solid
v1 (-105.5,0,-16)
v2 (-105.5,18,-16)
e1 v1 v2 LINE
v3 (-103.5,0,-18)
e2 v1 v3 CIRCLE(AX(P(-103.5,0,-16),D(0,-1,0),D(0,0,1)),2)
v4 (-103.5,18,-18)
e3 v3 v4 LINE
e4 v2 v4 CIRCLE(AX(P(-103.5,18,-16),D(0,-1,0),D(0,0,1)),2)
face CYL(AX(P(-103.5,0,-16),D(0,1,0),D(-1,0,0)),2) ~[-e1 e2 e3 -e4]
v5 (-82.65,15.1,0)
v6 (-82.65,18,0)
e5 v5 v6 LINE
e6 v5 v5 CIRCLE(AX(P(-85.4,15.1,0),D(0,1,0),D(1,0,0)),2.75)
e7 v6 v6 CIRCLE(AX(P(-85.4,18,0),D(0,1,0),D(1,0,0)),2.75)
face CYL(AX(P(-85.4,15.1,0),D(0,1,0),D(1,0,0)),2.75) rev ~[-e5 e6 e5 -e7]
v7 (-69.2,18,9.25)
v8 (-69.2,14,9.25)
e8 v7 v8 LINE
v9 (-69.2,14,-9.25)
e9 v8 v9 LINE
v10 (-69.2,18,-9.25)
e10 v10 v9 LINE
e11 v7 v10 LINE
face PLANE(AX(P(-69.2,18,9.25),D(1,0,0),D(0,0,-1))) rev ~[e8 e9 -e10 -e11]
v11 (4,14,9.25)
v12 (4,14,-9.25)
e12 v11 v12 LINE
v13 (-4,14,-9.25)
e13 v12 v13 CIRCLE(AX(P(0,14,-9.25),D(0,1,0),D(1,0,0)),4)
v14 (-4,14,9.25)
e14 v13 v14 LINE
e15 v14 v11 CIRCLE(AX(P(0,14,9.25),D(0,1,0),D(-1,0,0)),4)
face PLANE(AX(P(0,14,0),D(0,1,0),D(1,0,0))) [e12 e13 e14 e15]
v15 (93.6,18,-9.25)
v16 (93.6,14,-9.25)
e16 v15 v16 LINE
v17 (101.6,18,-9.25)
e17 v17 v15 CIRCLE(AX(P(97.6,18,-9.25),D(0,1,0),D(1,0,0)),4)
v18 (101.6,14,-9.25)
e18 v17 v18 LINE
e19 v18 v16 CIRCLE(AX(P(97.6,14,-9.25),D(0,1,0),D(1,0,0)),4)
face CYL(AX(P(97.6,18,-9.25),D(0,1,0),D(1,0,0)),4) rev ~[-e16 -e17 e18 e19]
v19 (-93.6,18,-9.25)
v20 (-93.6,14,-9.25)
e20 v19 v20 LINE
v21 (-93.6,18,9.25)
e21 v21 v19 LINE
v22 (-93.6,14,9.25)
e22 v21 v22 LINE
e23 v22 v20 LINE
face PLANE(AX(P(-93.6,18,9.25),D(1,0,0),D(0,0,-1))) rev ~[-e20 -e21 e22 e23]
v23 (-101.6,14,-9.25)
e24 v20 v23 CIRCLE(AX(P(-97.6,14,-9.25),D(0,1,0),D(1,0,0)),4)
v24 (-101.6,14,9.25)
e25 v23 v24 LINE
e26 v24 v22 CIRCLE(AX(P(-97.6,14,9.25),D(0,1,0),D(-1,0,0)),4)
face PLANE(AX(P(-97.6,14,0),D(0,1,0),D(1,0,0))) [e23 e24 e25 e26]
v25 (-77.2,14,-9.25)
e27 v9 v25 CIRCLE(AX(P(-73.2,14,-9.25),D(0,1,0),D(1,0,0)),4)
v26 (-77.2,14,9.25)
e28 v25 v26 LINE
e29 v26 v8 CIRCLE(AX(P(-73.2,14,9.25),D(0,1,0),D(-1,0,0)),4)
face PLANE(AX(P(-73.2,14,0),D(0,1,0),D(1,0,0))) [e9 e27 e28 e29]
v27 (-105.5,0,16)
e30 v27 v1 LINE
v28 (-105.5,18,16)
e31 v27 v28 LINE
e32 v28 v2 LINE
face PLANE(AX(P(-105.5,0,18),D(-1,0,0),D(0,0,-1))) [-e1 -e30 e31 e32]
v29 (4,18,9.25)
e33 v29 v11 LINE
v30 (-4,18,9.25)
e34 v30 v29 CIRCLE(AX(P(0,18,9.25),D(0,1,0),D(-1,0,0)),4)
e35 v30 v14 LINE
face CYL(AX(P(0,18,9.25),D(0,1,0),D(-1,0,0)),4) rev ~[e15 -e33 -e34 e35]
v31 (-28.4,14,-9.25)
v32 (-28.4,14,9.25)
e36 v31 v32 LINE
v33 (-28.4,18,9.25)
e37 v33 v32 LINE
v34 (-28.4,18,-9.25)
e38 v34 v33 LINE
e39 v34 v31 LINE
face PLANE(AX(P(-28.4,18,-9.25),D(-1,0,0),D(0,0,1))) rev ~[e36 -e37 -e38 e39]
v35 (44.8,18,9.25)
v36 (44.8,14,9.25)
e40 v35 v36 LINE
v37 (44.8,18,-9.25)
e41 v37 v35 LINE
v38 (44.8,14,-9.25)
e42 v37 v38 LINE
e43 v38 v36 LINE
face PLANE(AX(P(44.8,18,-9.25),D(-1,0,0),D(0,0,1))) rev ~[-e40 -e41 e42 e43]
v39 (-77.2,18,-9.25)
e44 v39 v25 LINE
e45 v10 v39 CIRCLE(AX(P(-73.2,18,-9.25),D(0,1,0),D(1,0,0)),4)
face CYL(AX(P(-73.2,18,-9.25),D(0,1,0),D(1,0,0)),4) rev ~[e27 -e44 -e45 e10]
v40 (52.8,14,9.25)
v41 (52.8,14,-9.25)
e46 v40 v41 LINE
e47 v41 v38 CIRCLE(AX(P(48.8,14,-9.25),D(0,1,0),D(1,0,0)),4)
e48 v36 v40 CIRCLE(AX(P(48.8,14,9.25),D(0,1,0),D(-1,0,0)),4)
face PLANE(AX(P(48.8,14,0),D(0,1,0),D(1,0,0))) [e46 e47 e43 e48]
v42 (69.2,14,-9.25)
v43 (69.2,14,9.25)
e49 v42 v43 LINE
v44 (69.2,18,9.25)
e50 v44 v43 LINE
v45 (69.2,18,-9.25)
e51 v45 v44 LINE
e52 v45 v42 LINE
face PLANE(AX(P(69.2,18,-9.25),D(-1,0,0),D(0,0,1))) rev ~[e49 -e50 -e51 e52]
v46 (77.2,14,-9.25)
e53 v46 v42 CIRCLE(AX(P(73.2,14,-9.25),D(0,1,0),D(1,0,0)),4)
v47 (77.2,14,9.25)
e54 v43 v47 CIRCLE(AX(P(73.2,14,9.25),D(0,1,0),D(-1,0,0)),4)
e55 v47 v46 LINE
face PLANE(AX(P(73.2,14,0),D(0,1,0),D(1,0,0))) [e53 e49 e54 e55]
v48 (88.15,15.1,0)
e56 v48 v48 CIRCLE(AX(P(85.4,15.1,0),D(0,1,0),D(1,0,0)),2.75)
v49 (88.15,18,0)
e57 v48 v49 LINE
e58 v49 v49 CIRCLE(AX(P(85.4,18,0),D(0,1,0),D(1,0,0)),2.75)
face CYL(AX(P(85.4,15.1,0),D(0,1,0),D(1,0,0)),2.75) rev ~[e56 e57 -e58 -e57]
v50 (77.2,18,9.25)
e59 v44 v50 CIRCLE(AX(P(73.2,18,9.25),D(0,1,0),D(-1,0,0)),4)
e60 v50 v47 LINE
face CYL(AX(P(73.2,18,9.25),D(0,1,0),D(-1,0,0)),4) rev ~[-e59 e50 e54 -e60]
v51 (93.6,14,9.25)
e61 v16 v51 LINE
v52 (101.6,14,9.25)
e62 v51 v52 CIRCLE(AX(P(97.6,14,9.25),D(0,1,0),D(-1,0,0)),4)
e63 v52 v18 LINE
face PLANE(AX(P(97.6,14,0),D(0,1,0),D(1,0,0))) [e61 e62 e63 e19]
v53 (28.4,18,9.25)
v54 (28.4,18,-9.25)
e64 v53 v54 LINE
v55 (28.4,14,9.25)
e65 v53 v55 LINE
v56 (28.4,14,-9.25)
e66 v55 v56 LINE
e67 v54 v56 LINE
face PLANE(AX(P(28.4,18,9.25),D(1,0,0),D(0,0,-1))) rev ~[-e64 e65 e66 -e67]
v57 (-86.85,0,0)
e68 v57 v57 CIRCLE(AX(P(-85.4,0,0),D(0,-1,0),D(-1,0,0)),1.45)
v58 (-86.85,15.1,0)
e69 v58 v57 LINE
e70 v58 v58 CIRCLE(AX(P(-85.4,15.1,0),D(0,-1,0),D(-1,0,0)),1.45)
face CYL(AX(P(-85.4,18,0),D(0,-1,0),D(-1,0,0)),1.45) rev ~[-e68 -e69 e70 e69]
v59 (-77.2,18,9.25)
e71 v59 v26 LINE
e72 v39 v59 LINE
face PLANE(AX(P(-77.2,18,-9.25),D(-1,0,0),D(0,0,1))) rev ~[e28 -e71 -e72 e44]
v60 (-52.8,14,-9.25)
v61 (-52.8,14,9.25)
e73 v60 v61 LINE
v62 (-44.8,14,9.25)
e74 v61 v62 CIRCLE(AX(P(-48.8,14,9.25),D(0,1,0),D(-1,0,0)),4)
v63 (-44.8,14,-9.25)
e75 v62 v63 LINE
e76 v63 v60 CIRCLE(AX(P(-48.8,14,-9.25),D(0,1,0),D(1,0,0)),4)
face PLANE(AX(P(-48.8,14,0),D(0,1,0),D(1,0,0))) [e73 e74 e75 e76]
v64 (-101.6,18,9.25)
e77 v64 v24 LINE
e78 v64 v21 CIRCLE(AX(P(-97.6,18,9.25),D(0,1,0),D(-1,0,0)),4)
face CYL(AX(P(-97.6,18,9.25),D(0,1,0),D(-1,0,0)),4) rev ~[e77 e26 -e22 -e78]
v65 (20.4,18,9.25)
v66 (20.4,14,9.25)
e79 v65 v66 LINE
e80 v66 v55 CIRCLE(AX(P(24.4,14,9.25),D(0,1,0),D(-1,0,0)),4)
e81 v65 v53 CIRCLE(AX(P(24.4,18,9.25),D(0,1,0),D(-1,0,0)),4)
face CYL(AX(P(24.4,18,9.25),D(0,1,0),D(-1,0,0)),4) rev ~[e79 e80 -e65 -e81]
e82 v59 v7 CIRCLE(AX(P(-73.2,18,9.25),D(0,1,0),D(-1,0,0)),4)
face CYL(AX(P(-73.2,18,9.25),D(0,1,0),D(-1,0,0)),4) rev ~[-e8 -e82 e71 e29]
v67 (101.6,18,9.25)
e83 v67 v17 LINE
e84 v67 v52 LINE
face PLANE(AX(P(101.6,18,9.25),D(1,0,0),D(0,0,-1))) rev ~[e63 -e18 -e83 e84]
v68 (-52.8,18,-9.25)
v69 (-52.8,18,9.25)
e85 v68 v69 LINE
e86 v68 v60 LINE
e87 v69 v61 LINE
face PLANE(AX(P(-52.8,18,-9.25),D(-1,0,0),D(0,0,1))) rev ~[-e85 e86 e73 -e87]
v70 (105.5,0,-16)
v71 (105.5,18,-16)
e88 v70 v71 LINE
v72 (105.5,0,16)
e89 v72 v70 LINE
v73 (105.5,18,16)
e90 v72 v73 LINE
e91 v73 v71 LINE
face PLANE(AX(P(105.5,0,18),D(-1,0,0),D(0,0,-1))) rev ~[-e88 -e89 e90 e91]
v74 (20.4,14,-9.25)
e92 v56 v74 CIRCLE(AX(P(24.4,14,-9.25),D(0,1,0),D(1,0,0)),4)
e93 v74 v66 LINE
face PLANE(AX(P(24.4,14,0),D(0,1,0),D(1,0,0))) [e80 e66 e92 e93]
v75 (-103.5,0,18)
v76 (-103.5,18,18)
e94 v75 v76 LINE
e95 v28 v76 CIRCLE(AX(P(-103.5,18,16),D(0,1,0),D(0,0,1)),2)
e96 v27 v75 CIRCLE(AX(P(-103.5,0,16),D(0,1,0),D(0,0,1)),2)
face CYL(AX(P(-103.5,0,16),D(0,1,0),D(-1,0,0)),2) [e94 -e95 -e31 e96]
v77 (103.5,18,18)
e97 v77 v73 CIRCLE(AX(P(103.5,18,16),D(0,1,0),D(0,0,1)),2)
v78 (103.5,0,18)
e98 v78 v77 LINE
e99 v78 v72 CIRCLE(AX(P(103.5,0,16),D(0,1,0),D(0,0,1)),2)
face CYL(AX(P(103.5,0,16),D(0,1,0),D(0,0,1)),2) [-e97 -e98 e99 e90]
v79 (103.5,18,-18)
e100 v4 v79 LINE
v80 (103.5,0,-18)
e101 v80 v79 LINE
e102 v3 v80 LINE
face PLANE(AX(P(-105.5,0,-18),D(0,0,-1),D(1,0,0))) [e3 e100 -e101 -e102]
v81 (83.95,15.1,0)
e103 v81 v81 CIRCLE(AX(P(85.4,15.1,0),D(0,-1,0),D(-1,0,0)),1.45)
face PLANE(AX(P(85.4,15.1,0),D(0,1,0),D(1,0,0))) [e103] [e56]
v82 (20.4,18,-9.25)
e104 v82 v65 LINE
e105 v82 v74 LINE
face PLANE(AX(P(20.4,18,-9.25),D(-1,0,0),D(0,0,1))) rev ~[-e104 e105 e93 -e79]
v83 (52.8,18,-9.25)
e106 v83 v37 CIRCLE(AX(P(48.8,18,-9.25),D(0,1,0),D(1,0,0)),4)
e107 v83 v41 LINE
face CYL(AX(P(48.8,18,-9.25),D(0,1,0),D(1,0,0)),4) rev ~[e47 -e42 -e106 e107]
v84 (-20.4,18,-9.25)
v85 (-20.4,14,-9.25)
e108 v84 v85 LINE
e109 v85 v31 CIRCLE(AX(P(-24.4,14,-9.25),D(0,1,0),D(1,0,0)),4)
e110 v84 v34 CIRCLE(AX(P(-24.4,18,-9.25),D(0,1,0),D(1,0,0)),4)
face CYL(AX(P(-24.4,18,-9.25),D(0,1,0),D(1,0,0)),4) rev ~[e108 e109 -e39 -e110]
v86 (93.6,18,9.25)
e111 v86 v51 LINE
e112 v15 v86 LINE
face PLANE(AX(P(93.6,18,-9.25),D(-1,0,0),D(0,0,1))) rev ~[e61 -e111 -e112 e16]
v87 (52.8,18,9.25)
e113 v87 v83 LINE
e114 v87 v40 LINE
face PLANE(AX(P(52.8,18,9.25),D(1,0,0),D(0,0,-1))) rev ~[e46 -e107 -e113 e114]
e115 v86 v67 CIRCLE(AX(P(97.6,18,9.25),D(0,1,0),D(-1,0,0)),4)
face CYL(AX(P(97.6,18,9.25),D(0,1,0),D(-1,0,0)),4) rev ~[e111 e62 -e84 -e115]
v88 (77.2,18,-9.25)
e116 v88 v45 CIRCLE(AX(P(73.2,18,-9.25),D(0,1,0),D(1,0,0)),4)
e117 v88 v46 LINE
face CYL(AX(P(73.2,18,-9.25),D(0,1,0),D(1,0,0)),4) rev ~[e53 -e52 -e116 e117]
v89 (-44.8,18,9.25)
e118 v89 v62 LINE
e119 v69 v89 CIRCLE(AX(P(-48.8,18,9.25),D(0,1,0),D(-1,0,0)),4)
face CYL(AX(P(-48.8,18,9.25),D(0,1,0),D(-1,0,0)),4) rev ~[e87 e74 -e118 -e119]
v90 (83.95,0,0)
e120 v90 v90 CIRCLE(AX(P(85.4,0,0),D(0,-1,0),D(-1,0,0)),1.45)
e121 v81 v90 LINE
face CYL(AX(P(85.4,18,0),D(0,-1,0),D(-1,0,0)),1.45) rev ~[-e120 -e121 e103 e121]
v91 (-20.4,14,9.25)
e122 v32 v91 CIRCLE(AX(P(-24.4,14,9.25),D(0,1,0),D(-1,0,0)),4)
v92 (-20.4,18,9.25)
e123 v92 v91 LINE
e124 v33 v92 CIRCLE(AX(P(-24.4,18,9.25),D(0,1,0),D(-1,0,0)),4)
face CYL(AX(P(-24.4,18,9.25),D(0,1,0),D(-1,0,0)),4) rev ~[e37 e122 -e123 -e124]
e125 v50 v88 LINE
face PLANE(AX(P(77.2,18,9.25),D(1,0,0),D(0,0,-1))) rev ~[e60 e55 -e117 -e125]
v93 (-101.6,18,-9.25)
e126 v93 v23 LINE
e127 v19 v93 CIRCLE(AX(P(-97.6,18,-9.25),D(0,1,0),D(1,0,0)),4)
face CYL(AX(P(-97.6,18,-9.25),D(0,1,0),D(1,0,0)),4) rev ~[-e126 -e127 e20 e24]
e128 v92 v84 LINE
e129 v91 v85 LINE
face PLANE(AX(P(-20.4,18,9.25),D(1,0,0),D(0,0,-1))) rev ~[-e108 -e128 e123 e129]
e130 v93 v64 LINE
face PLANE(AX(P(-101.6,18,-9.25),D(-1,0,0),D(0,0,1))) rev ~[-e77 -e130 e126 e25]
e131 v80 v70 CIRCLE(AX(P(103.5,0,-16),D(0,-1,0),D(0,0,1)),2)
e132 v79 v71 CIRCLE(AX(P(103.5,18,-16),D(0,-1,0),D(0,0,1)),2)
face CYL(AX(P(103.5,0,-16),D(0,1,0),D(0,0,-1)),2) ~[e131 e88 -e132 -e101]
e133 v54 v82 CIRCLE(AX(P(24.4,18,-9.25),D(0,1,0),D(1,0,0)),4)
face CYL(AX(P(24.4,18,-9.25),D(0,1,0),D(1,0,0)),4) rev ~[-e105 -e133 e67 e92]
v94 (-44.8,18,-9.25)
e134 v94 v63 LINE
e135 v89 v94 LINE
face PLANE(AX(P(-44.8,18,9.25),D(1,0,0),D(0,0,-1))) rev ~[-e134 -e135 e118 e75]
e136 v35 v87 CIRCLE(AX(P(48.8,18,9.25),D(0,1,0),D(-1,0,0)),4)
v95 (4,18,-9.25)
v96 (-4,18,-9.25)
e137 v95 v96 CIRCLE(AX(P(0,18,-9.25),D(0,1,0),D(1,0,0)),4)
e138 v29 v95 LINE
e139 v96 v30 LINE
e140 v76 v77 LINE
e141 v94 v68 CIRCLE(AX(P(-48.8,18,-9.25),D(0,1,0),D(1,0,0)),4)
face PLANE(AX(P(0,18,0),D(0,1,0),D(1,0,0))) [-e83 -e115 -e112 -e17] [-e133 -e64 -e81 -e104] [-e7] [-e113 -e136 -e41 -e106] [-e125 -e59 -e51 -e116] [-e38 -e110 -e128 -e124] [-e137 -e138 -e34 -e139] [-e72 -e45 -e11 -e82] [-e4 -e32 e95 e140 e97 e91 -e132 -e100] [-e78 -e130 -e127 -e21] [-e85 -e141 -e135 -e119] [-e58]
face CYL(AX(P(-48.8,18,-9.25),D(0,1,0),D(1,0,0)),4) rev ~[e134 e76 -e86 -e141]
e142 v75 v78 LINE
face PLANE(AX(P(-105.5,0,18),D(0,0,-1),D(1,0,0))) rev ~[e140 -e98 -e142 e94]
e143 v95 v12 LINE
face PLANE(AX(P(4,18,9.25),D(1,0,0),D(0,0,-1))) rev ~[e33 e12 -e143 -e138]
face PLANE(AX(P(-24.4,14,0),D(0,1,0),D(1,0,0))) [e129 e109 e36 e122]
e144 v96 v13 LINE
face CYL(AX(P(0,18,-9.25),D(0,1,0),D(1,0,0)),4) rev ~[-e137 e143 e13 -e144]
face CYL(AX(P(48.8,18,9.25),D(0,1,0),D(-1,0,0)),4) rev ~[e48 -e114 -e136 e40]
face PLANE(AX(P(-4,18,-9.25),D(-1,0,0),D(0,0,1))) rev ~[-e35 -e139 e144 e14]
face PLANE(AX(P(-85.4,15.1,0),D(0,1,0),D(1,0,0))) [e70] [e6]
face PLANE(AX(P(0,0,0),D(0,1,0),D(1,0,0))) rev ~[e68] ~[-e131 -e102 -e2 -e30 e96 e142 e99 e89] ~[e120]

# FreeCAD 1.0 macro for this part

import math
import FreeCAD as App
import Part
import Sketcher
from FreeCAD import Vector


def edges_at(feature, points):
    """Names of the edges that pass closest to the given points."""
    edges = feature.Shape.Edges
    near = lambda p: min(range(len(edges)), key=lambda i: edges[i].distToShape(Part.Vertex(*p))[0])
    return sorted({f"Edge{near(p) + 1}" for p in points})


def add_polygon(sketch, points):
    """Adds a closed chain of lines whose ends are joined by coincident constraints."""
    first, n = sketch.GeometryCount, len(points)
    for a, b in zip(points, points[1:] + points[:1]):
        sketch.addGeometry(Part.LineSegment(App.Vector(*a, 0), App.Vector(*b, 0)), False)
    for i in range(n):
        sketch.addConstraint(Sketcher.Constraint("Coincident", first + i, 2, first + (i + 1) % n, 1))

doc = App.newDocument("Part")
body = doc.addObject("PartDesign::Body", "Body")

# Sketch on XZ plane
sketch1 = body.newObject("Sketcher::SketchObject", "Sketch")
sketch1.AttachmentSupport = (doc.getObject("XZ_Plane"), [""])
sketch1.MapMode = "FlatFace"
add_polygon(sketch1, [(-106, -18), (-106, 18), (106, 18), (106, -18)])  # lines 0-3
sketch1.addConstraint(Sketcher.Constraint("Vertical", 0))
sketch1.addConstraint(Sketcher.Constraint("Horizontal", 1))
sketch1.addConstraint(Sketcher.Constraint("Vertical", 2))
sketch1.addConstraint(Sketcher.Constraint("Horizontal", 3))
sketch1.addConstraint(Sketcher.Constraint("Symmetric", 0, 2, 2, 2, -1, 1))
sketch1.addConstraint(Sketcher.Constraint("DistanceX", 1, 1, 1, 2, 211.0))
sketch1.addConstraint(Sketcher.Constraint("DistanceY", 0, 1, 0, 2, 36.0))
pad1 = body.newObject("PartDesign::Pad", "Pad")
pad1.Profile = sketch1
pad1.Length = 18
pad1.Reversed = True

# Sketch on XZ plane
sketch2 = body.newObject("Sketcher::SketchObject", "Sketch001")
sketch2.AttachmentSupport = (doc.getObject("XZ_Plane"), [""])
sketch2.MapMode = "FlatFace"
sketch2.AttachmentOffset = App.Placement(Vector(0, 0, -18), App.Rotation())
sketch2.addGeometry(Part.LineSegment(Vector(-101.6, -9.2, 0), Vector(-101.6, 9.2, 0)), False)
sketch2.addGeometry(Part.ArcOfCircle(Part.Circle(Vector(-97.6, 9.2, 0), Vector(0, 0, 1), 4), math.radians(0), math.radians(180)), False)
sketch2.addGeometry(Part.LineSegment(Vector(-93.6, 9.2, 0), Vector(-93.6, -9.2, 0)), False)
sketch2.addGeometry(Part.ArcOfCircle(Part.Circle(Vector(-97.6, -9.2, 0), Vector(0, 0, 1), 4), math.radians(180), math.radians(360)), False)
sketch2.addConstraint(Sketcher.Constraint("Tangent", 0, 2, 1, 2))
sketch2.addConstraint(Sketcher.Constraint("Tangent", 1, 1, 2, 1))
sketch2.addConstraint(Sketcher.Constraint("Tangent", 2, 2, 3, 2))
sketch2.addConstraint(Sketcher.Constraint("Tangent", 3, 1, 0, 1))
sketch2.addConstraint(Sketcher.Constraint("Vertical", 0))
sketch2.addConstraint(Sketcher.Constraint("Vertical", 2))
sketch2.addConstraint(Sketcher.Constraint("Radius", 1, 4.0))
sketch2.addConstraint(Sketcher.Constraint("DistanceY", 0, 1, 0, 2, 18.5))
sketch2.addConstraint(Sketcher.Constraint("DistanceX", 1, 3, -1, 1, 97.6))
sketch2.addConstraint(Sketcher.Constraint("DistanceY", -1, 1, 1, 3, 9.25))
pocket1 = body.newObject("PartDesign::Pocket", "Pocket")
pocket1.Profile = sketch2
pocket1.Length = 4
pocket1.Reversed = True
doc.recompute()

linearpattern = body.newObject("PartDesign::LinearPattern", "LinearPattern")
linearpattern.Originals = [pocket1]
linearpattern.Direction = (doc.getObject("X_Axis"), [""])
linearpattern.Mode = "offset"
linearpattern.Offset = 24.4
linearpattern.Occurrences = 9
body.Tip = linearpattern

# Sketch on XZ plane
sketch3 = body.newObject("Sketcher::SketchObject", "Sketch002")
sketch3.AttachmentSupport = (doc.getObject("XZ_Plane"), [""])
sketch3.MapMode = "FlatFace"
sketch3.AttachmentOffset = App.Placement(Vector(0, 0, -18), App.Rotation())
sketch3.addGeometry(Part.Circle(Vector(-85.4, 0, 0), Vector(0, 0, 1), 1.4), False)
sketch3.addGeometry(Part.Circle(Vector(85.4, 0, 0), Vector(0, 0, 1), 1.4), False)
sketch3.addConstraint(Sketcher.Constraint("Equal", 0, 1))
sketch3.addConstraint(Sketcher.Constraint("Symmetric", 0, 3, 1, 3, -1, 1))
sketch3.addConstraint(Sketcher.Constraint("PointOnObject", 0, 3, -1))
sketch3.addConstraint(Sketcher.Constraint("Diameter", 0, 2.9))
sketch3.addConstraint(Sketcher.Constraint("DistanceX", 0, 3, -1, 1, 85.4))
doc.recompute()
hole = body.newObject("PartDesign::Hole", "Hole")
hole.Profile = sketch3
hole.ThreadType = "None"
hole.Diameter = 2.9
hole.DepthType = "ThroughAll"
hole.HoleCutType = "Counterbore"
hole.HoleCutDiameter = 5.5
hole.HoleCutDepth = 2.9
hole.Reversed = True
doc.recompute()

fillet = body.newObject("PartDesign::Fillet", "Fillet")
fillet.Base = (hole, edges_at(hole, [
    (105.5, 9, 18),
    (-105.5, 9, 18),
    (-105.5, 9, -18),
    (105.5, 9, -18),
]))
fillet.Radius = 2

doc.recompute()
